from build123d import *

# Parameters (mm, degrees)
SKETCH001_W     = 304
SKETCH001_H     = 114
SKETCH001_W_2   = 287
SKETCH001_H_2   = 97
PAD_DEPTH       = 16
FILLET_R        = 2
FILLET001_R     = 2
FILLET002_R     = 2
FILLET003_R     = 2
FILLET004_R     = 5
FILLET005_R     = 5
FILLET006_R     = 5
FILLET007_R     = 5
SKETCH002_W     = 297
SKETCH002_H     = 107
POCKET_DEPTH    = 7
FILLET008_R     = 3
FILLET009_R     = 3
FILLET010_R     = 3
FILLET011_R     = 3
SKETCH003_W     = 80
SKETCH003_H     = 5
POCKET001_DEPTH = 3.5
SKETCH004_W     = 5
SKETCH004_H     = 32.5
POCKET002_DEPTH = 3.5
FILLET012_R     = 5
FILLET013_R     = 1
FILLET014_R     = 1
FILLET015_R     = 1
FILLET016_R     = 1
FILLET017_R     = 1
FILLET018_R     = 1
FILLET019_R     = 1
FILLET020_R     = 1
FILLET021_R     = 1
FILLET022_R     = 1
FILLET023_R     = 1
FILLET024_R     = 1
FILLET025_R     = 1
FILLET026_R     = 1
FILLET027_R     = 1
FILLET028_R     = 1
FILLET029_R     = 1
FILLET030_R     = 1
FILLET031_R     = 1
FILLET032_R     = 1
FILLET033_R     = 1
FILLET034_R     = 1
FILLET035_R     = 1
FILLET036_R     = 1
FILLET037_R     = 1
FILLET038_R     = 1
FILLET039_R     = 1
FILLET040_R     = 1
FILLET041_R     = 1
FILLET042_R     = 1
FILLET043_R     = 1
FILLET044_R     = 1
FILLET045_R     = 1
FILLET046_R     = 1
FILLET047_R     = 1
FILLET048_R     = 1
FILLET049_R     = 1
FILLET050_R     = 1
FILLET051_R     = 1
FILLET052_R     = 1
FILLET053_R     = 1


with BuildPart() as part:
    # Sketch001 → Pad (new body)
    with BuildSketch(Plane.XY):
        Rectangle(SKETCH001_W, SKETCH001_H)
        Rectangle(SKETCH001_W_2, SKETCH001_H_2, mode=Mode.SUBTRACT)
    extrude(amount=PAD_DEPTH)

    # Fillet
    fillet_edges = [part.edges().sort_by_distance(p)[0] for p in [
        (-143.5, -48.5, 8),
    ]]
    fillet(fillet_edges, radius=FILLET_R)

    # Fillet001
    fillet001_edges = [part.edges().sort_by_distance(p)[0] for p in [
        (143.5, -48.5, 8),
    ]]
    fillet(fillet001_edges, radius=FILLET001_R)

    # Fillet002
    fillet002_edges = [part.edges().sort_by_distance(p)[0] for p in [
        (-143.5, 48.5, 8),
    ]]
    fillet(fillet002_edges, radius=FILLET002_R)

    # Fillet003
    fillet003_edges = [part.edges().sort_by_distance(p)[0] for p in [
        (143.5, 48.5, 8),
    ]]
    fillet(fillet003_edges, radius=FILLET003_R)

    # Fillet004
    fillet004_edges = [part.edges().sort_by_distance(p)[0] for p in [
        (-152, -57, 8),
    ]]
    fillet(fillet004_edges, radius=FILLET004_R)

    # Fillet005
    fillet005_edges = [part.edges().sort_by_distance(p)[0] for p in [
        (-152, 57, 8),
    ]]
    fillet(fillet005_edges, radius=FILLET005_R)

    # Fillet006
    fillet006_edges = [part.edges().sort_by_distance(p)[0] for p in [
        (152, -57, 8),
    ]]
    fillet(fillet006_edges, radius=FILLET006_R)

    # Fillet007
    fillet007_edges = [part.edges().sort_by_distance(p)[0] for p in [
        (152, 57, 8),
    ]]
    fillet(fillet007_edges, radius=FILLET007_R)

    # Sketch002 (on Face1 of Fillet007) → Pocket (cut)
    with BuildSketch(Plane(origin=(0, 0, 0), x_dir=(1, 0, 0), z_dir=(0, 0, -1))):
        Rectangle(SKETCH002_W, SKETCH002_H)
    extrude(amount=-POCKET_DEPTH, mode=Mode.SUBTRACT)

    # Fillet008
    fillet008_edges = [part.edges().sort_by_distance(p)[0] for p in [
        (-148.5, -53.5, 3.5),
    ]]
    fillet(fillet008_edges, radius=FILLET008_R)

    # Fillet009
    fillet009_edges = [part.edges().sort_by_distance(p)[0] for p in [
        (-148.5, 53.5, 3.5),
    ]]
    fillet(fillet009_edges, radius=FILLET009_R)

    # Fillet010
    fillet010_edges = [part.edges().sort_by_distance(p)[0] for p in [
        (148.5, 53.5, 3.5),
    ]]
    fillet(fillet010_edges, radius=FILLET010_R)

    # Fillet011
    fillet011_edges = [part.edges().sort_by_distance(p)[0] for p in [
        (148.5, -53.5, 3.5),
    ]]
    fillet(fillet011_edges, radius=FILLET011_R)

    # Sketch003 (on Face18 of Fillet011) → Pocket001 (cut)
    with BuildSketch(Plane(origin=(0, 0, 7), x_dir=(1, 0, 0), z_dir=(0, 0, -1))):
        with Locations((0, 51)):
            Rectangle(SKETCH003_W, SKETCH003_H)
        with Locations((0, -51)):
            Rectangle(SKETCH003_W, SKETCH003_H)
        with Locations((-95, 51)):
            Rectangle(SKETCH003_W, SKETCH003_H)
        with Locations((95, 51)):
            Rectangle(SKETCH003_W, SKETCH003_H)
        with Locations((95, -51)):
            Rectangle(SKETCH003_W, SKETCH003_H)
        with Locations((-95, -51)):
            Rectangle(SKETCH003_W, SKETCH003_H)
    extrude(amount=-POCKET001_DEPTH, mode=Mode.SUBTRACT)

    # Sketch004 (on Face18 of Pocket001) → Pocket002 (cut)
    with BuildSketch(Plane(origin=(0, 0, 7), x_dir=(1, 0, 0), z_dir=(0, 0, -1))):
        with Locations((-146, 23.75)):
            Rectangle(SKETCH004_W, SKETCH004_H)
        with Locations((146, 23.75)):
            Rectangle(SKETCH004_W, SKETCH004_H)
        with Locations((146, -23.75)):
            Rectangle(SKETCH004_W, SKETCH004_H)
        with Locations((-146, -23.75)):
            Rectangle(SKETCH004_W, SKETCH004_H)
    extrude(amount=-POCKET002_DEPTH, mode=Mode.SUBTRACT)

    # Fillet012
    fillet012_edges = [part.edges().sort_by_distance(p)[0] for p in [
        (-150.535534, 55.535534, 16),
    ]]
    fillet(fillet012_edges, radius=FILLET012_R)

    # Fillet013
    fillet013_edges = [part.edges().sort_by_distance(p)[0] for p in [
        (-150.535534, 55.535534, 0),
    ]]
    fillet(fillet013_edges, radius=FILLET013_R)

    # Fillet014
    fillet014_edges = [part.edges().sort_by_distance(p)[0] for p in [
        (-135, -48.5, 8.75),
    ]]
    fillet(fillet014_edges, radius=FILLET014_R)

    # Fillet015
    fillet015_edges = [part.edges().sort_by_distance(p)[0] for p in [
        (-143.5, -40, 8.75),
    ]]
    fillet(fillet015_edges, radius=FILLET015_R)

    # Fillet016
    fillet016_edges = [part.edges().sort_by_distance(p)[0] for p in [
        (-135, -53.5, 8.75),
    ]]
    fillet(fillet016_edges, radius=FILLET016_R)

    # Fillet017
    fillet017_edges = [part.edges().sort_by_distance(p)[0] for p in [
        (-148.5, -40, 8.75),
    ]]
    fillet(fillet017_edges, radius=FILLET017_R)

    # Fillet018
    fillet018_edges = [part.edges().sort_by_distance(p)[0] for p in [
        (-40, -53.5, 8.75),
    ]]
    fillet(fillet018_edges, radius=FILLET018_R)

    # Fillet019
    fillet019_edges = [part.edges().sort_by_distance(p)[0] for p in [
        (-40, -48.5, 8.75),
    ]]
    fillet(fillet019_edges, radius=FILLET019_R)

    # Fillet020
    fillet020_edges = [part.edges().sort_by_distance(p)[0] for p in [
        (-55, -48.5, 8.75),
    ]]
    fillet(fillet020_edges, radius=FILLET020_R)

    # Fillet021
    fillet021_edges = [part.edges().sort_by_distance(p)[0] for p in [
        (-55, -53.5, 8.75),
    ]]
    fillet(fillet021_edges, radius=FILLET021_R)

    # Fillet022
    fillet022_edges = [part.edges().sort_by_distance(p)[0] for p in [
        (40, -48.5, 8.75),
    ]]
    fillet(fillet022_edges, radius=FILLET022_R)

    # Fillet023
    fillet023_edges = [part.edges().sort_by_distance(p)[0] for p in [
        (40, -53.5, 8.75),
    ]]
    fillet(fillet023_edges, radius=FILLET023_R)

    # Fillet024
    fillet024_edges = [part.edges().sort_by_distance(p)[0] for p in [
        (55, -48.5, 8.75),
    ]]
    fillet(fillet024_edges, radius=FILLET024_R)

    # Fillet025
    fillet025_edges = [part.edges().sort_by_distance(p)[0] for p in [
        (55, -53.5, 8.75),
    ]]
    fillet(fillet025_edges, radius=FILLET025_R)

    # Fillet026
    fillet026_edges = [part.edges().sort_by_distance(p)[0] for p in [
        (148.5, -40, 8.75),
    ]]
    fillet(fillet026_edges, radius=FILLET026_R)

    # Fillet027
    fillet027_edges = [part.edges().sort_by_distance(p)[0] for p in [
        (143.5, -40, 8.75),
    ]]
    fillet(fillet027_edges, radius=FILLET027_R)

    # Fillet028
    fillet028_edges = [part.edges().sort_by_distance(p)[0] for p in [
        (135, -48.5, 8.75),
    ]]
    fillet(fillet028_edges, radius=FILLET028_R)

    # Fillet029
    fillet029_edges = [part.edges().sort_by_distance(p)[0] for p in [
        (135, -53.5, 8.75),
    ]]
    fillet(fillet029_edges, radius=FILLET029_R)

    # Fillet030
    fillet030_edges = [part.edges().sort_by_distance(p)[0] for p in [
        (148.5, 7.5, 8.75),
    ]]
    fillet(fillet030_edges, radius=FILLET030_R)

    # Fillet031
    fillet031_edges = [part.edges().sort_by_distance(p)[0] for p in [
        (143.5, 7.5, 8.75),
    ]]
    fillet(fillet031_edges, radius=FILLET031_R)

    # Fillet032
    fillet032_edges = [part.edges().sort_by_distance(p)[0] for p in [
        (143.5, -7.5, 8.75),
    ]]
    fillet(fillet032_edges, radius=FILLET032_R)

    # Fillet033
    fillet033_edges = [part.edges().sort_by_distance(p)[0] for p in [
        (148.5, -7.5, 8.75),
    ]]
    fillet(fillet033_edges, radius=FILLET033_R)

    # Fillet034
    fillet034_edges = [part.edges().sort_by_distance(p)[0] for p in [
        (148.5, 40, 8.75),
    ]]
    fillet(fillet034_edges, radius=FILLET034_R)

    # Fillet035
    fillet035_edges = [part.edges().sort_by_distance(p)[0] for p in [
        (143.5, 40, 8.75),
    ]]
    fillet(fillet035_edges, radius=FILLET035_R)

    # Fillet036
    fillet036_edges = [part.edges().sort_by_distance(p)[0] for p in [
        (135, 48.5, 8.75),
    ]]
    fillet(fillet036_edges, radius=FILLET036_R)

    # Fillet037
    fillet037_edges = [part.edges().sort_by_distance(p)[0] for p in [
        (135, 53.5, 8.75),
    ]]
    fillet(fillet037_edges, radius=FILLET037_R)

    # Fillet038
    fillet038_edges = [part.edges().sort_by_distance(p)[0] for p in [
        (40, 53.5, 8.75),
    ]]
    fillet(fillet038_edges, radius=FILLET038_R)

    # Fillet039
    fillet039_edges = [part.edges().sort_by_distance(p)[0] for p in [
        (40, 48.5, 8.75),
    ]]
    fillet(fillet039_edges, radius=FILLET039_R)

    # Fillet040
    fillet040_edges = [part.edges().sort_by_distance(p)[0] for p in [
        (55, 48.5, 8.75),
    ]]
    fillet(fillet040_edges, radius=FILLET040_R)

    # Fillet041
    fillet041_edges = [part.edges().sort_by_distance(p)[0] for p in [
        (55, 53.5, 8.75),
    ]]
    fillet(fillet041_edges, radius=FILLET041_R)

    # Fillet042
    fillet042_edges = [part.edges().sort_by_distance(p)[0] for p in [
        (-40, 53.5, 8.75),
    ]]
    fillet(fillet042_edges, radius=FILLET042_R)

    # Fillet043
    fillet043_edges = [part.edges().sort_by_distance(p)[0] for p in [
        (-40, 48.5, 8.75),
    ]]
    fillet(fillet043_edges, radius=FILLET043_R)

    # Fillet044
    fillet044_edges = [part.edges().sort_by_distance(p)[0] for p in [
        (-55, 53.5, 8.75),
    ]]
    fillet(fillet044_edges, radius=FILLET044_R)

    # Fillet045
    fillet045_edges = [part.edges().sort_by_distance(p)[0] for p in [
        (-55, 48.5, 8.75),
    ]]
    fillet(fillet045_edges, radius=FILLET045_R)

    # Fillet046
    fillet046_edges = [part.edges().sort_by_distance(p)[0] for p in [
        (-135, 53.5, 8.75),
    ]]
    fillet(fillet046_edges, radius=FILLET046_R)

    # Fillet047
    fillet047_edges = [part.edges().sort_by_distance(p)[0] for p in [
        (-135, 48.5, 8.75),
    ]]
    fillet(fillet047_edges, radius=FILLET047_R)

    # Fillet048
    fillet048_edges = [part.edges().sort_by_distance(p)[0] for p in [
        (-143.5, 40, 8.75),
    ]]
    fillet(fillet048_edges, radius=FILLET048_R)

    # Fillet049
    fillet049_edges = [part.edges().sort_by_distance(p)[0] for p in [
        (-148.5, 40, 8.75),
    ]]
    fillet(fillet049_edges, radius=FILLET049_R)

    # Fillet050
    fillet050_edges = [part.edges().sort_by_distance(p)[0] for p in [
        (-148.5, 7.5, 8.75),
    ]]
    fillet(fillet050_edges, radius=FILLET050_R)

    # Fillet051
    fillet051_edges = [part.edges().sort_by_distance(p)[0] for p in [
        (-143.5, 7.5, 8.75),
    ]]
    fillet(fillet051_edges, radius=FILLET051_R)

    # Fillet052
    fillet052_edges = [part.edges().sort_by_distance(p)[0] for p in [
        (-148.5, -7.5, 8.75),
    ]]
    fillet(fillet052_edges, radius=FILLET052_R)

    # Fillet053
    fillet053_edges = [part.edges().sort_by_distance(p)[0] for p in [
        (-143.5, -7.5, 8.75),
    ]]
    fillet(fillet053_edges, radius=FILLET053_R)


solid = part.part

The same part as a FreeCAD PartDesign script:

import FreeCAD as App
import Part
import Sketcher
from FreeCAD import Vector
Q = App.Units.Quantity


def edges_at(feature, points):
    """Names of the edges that pass closest to the given points."""
    edges = feature.Shape.Edges
    near = lambda p: min(range(len(edges)), key=lambda i: edges[i].distToShape(Part.Vertex(*p))[0])
    return sorted({f"Edge{near(p) + 1}" for p in points})

doc = App.newDocument("Part")
body = doc.addObject("PartDesign::Body", "Body")

# Sketch on XY plane
sketch1 = body.newObject("Sketcher::SketchObject", "Sketch")
sketch1.AttachmentSupport = (doc.getObject("XY_Plane"), [""])
sketch1.MapMode = "FlatFace"
sketch1.addGeometry([
    Part.LineSegment(Vector(-152, 57, 0), Vector(-152, -57, 0)),  # 0
    Part.LineSegment(Vector(-152, -57, 0), Vector(152, -57, 0)),  # 1
    Part.LineSegment(Vector(152, -57, 0), Vector(152, 57, 0)),  # 2
    Part.LineSegment(Vector(152, 57, 0), Vector(-152, 57, 0)),  # 3
    Part.LineSegment(Vector(143.5, -48.5, 0), Vector(-143.5, -48.5, 0)),  # 4
    Part.LineSegment(Vector(-143.5, -48.5, 0), Vector(-143.5, 48.5, 0)),  # 5
    Part.LineSegment(Vector(-143.5, 48.5, 0), Vector(143.5, 48.5, 0)),  # 6
    Part.LineSegment(Vector(143.5, 48.5, 0), Vector(143.5, -48.5, 0)),  # 7
], False)
sketch1.addConstraint([
    Sketcher.Constraint("Coincident", 0, 2, 1, 1),
    Sketcher.Constraint("Coincident", 1, 2, 2, 1),
    Sketcher.Constraint("Coincident", 2, 2, 3, 1),
    Sketcher.Constraint("Coincident", 3, 2, 0, 1),
    Sketcher.Constraint("Coincident", 4, 2, 5, 1),
    Sketcher.Constraint("Coincident", 5, 2, 6, 1),
    Sketcher.Constraint("Coincident", 6, 2, 7, 1),
    Sketcher.Constraint("Coincident", 7, 2, 4, 1),
    Sketcher.Constraint("Vertical", 0),
    Sketcher.Constraint("Horizontal", 1),
    Sketcher.Constraint("Vertical", 2),
    Sketcher.Constraint("Horizontal", 3),
    Sketcher.Constraint("Horizontal", 4),
    Sketcher.Constraint("Vertical", 5),
    Sketcher.Constraint("Horizontal", 6),
    Sketcher.Constraint("Vertical", 7),
    Sketcher.Constraint("Symmetric", 0, 2, 2, 2, -1, 1),
    Sketcher.Constraint("Symmetric", 4, 2, 6, 2, -1, 1),
    Sketcher.Constraint("DistanceX", 1, 1, 1, 2, Q("304 mm")),
    Sketcher.Constraint("DistanceX", 4, 2, 4, 1, Q("287 mm")),
    Sketcher.Constraint("DistanceY", 0, 2, 0, 1, Q("114 mm")),
    Sketcher.Constraint("DistanceY", 5, 1, 5, 2, Q("97 mm")),
])
pad1 = body.newObject("PartDesign::Pad", "Pad")
pad1.Profile = sketch1
pad1.Length = 16
doc.recompute()

fillet = body.newObject("PartDesign::Fillet", "Fillet")
fillet.Base = (pad1, edges_at(pad1, [(-143.5, -48.5, 8)]))
fillet.Radius = 2
doc.recompute()

fillet2 = body.newObject("PartDesign::Fillet", "Fillet001")
fillet2.Base = (fillet, edges_at(fillet, [(143.5, -48.5, 8)]))
fillet2.Radius = 2
doc.recompute()

fillet3 = body.newObject("PartDesign::Fillet", "Fillet002")
fillet3.Base = (fillet2, edges_at(fillet2, [(-143.5, 48.5, 8)]))
fillet3.Radius = 2
doc.recompute()

fillet4 = body.newObject("PartDesign::Fillet", "Fillet003")
fillet4.Base = (fillet3, edges_at(fillet3, [(143.5, 48.5, 8)]))
fillet4.Radius = 2
doc.recompute()

fillet5 = body.newObject("PartDesign::Fillet", "Fillet004")
fillet5.Base = (fillet4, edges_at(fillet4, [(-152, -57, 8)]))
fillet5.Radius = 5
doc.recompute()

fillet6 = body.newObject("PartDesign::Fillet", "Fillet005")
fillet6.Base = (fillet5, edges_at(fillet5, [(-152, 57, 8)]))
fillet6.Radius = 5
doc.recompute()

fillet7 = body.newObject("PartDesign::Fillet", "Fillet006")
fillet7.Base = (fillet6, edges_at(fillet6, [(152, -57, 8)]))
fillet7.Radius = 5
doc.recompute()

fillet8 = body.newObject("PartDesign::Fillet", "Fillet007")
fillet8.Base = (fillet7, edges_at(fillet7, [(152, 57, 8)]))
fillet8.Radius = 5

# Sketch on XY plane
sketch2 = body.newObject("Sketcher::SketchObject", "Sketch001")
sketch2.AttachmentSupport = (doc.getObject("XY_Plane"), [""])
sketch2.MapMode = "FlatFace"
sketch2.addGeometry([
    Part.LineSegment(Vector(-148.5, -53.5, 0), Vector(-148.5, 53.5, 0)),
    Part.LineSegment(Vector(-148.5, 53.5, 0), Vector(148.5, 53.5, 0)),
    Part.LineSegment(Vector(148.5, 53.5, 0), Vector(148.5, -53.5, 0)),
    Part.LineSegment(Vector(148.5, -53.5, 0), Vector(-148.5, -53.5, 0)),
], False)
sketch2.addConstraint([
    Sketcher.Constraint("Coincident", 0, 2, 1, 1),
    Sketcher.Constraint("Coincident", 1, 2, 2, 1),
    Sketcher.Constraint("Coincident", 2, 2, 3, 1),
    Sketcher.Constraint("Coincident", 3, 2, 0, 1),
    Sketcher.Constraint("Vertical", 0),
    Sketcher.Constraint("Horizontal", 1),
    Sketcher.Constraint("Vertical", 2),
    Sketcher.Constraint("Horizontal", 3),
    Sketcher.Constraint("Symmetric", 0, 2, 2, 2, -1, 1),
    Sketcher.Constraint("DistanceX", 1, 1, 1, 2, Q("297 mm")),
    Sketcher.Constraint("DistanceY", 0, 1, 0, 2, Q("107 mm")),
])
pocket1 = body.newObject("PartDesign::Pocket", "Pocket")
pocket1.Profile = sketch2
pocket1.Length = 7
pocket1.Reversed = True
doc.recompute()

fillet9 = body.newObject("PartDesign::Fillet", "Fillet008")
fillet9.Base = (pocket1, edges_at(pocket1, [(-148.5, -53.5, 3.5)]))
fillet9.Radius = 3
doc.recompute()

fillet10 = body.newObject("PartDesign::Fillet", "Fillet009")
fillet10.Base = (fillet9, edges_at(fillet9, [(-148.5, 53.5, 3.5)]))
fillet10.Radius = 3
doc.recompute()

fillet11 = body.newObject("PartDesign::Fillet", "Fillet010")
fillet11.Base = (fillet10, edges_at(fillet10, [(148.5, 53.5, 3.5)]))
fillet11.Radius = 3
doc.recompute()

fillet12 = body.newObject("PartDesign::Fillet", "Fillet011")
fillet12.Base = (fillet11, edges_at(fillet11, [(148.5, -53.5, 3.5)]))
fillet12.Radius = 3

# Sketch on XY plane
sketch3 = body.newObject("Sketcher::SketchObject", "Sketch002")
sketch3.AttachmentSupport = (doc.getObject("XY_Plane"), [""])
sketch3.MapMode = "FlatFace"
sketch3.AttachmentOffset = App.Placement(Vector(0, 0, 7), App.Rotation())
sketch3.addGeometry([
    Part.LineSegment(Vector(-40, -53.5, 0), Vector(-40, -48.5, 0)),  # 0
    Part.LineSegment(Vector(-40, -48.5, 0), Vector(40, -48.5, 0)),  # 1
    Part.LineSegment(Vector(40, -48.5, 0), Vector(40, -53.5, 0)),  # 2
    Part.LineSegment(Vector(40, -53.5, 0), Vector(-40, -53.5, 0)),  # 3
    Part.LineSegment(Vector(-40, 48.5, 0), Vector(-40, 53.5, 0)),  # 4
    Part.LineSegment(Vector(-40, 53.5, 0), Vector(40, 53.5, 0)),  # 5
    Part.LineSegment(Vector(40, 53.5, 0), Vector(40, 48.5, 0)),  # 6
    Part.LineSegment(Vector(40, 48.5, 0), Vector(-40, 48.5, 0)),  # 7
    Part.LineSegment(Vector(-135, -53.5, 0), Vector(-135, -48.5, 0)),  # 8
    Part.LineSegment(Vector(-135, -48.5, 0), Vector(-55, -48.5, 0)),  # 9
    Part.LineSegment(Vector(-55, -48.5, 0), Vector(-55, -53.5, 0)),  # 10
    Part.LineSegment(Vector(-55, -53.5, 0), Vector(-135, -53.5, 0)),  # 11
    Part.LineSegment(Vector(55, -53.5, 0), Vector(55, -48.5, 0)),  # 12
    Part.LineSegment(Vector(55, -48.5, 0), Vector(135, -48.5, 0)),  # 13
    Part.LineSegment(Vector(135, -48.5, 0), Vector(135, -53.5, 0)),  # 14
    Part.LineSegment(Vector(135, -53.5, 0), Vector(55, -53.5, 0)),  # 15
    Part.LineSegment(Vector(55, 48.5, 0), Vector(55, 53.5, 0)),  # 16
    Part.LineSegment(Vector(55, 53.5, 0), Vector(135, 53.5, 0)),  # 17
    Part.LineSegment(Vector(135, 53.5, 0), Vector(135, 48.5, 0)),  # 18
    Part.LineSegment(Vector(135, 48.5, 0), Vector(55, 48.5, 0)),  # 19
    Part.LineSegment(Vector(-135, 48.5, 0), Vector(-135, 53.5, 0)),  # 20
    Part.LineSegment(Vector(-135, 53.5, 0), Vector(-55, 53.5, 0)),  # 21
    Part.LineSegment(Vector(-55, 53.5, 0), Vector(-55, 48.5, 0)),  # 22
    Part.LineSegment(Vector(-55, 48.5, 0), Vector(-135, 48.5, 0)),  # 23
], False)
sketch3.addConstraint([
    Sketcher.Constraint("Coincident", 0, 2, 1, 1),
    Sketcher.Constraint("Coincident", 1, 2, 2, 1),
    Sketcher.Constraint("Coincident", 2, 2, 3, 1),
    Sketcher.Constraint("Coincident", 3, 2, 0, 1),
    Sketcher.Constraint("Coincident", 4, 2, 5, 1),
    Sketcher.Constraint("Coincident", 5, 2, 6, 1),
    Sketcher.Constraint("Coincident", 6, 2, 7, 1),
    Sketcher.Constraint("Coincident", 7, 2, 4, 1),
    Sketcher.Constraint("Coincident", 8, 2, 9, 1),
    Sketcher.Constraint("Coincident", 9, 2, 10, 1),
    Sketcher.Constraint("Coincident", 10, 2, 11, 1),
    Sketcher.Constraint("Coincident", 11, 2, 8, 1),
    Sketcher.Constraint("Coincident", 12, 2, 13, 1),
    Sketcher.Constraint("Coincident", 13, 2, 14, 1),
    Sketcher.Constraint("Coincident", 14, 2, 15, 1),
    Sketcher.Constraint("Coincident", 15, 2, 12, 1),
    Sketcher.Constraint("Coincident", 16, 2, 17, 1),
    Sketcher.Constraint("Coincident", 17, 2, 18, 1),
    Sketcher.Constraint("Coincident", 18, 2, 19, 1),
    Sketcher.Constraint("Coincident", 19, 2, 16, 1),
    Sketcher.Constraint("Coincident", 20, 2, 21, 1),
    Sketcher.Constraint("Coincident", 21, 2, 22, 1),
    Sketcher.Constraint("Coincident", 22, 2, 23, 1),
    Sketcher.Constraint("Coincident", 23, 2, 20, 1),
    Sketcher.Constraint("Vertical", 0),
    Sketcher.Constraint("Horizontal", 1),
    Sketcher.Constraint("Vertical", 2),
    Sketcher.Constraint("Horizontal", 3),
    Sketcher.Constraint("Vertical", 4),
    Sketcher.Constraint("Horizontal", 5),
    Sketcher.Constraint("Vertical", 6),
    Sketcher.Constraint("Horizontal", 7),
    Sketcher.Constraint("Vertical", 8),
    Sketcher.Constraint("Horizontal", 9),
    Sketcher.Constraint("Vertical", 10),
    Sketcher.Constraint("Horizontal", 11),
    Sketcher.Constraint("Vertical", 12),
    Sketcher.Constraint("Horizontal", 13),
    Sketcher.Constraint("Vertical", 14),
    Sketcher.Constraint("Horizontal", 15),
    Sketcher.Constraint("Vertical", 16),
    Sketcher.Constraint("Horizontal", 17),
    Sketcher.Constraint("Vertical", 18),
    Sketcher.Constraint("Horizontal", 19),
    Sketcher.Constraint("Vertical", 20),
    Sketcher.Constraint("Horizontal", 21),
    Sketcher.Constraint("Vertical", 22),
    Sketcher.Constraint("Horizontal", 23),
    Sketcher.Constraint("Symmetric", 2, 2, 4, 2, -1, 1),
    Sketcher.Constraint("Symmetric", 0, 2, 6, 2, -1, 1),
    Sketcher.Constraint("Symmetric", 10, 2, 16, 2, -1, 1),
    Sketcher.Constraint("Symmetric", 8, 2, 18, 2, -1, 1),
    Sketcher.Constraint("Symmetric", 14, 2, 20, 2, -1, 1),
    Sketcher.Constraint("Symmetric", 12, 2, 22, 2, -1, 1),
    Sketcher.Constraint("Symmetric", 9, 2, 12, 2, -2),
    Sketcher.Constraint("Symmetric", 11, 2, 14, 2, -2),
    Sketcher.Constraint("Horizontal", 1, 2, 8, 2),
    Sketcher.Constraint("Horizontal", 3, 2, 10, 2),
    Sketcher.Constraint("Vertical", 3, 2, 4, 2),
    Sketcher.Constraint("Equal", 7, 9),
    Sketcher.Constraint("DistanceX", 1, 1, 1, 2, Q("80 mm")),
    Sketcher.Constraint("DistanceY", 0, 1, 0, 2, Q("5 mm")),
    Sketcher.Constraint("DistanceX", 8, 2, -1, 1, Q("135 mm")),
    Sketcher.Constraint("DistanceY", 0, 2, 4, 2, Q("102 mm")),
])
pocket2 = body.newObject("PartDesign::Pocket", "Pocket001")
pocket2.Profile = sketch3
pocket2.Length = 3.5
pocket2.Reversed = True

# Sketch on XY plane
sketch4 = body.newObject("Sketcher::SketchObject", "Sketch003")
sketch4.AttachmentSupport = (doc.getObject("XY_Plane"), [""])
sketch4.MapMode = "FlatFace"
sketch4.AttachmentOffset = App.Placement(Vector(0, 0, 7), App.Rotation())
sketch4.addGeometry([
    Part.LineSegment(Vector(-148.5, -40, 0), Vector(-148.5, -7.5, 0)),  # 0
    Part.LineSegment(Vector(-148.5, -7.5, 0), Vector(-143.5, -7.5, 0)),  # 1
    Part.LineSegment(Vector(-143.5, -7.5, 0), Vector(-143.5, -40, 0)),  # 2
    Part.LineSegment(Vector(-143.5, -40, 0), Vector(-148.5, -40, 0)),  # 3
    Part.LineSegment(Vector(143.5, -40, 0), Vector(143.5, -7.5, 0)),  # 4
    Part.LineSegment(Vector(143.5, -7.5, 0), Vector(148.5, -7.5, 0)),  # 5
    Part.LineSegment(Vector(148.5, -7.5, 0), Vector(148.5, -40, 0)),  # 6
    Part.LineSegment(Vector(148.5, -40, 0), Vector(143.5, -40, 0)),  # 7
    Part.LineSegment(Vector(143.5, 7.5, 0), Vector(143.5, 40, 0)),  # 8
    Part.LineSegment(Vector(143.5, 40, 0), Vector(148.5, 40, 0)),  # 9
    Part.LineSegment(Vector(148.5, 40, 0), Vector(148.5, 7.5, 0)),  # 10
    Part.LineSegment(Vector(148.5, 7.5, 0), Vector(143.5, 7.5, 0)),  # 11
    Part.LineSegment(Vector(-148.5, 7.5, 0), Vector(-148.5, 40, 0)),  # 12
    Part.LineSegment(Vector(-148.5, 40, 0), Vector(-143.5, 40, 0)),  # 13
    Part.LineSegment(Vector(-143.5, 40, 0), Vector(-143.5, 7.5, 0)),  # 14
    Part.LineSegment(Vector(-143.5, 7.5, 0), Vector(-148.5, 7.5, 0)),  # 15
], False)
sketch4.addConstraint([
    Sketcher.Constraint("Coincident", 0, 2, 1, 1),
    Sketcher.Constraint("Coincident", 1, 2, 2, 1),
    Sketcher.Constraint("Coincident", 2, 2, 3, 1),
    Sketcher.Constraint("Coincident", 3, 2, 0, 1),
    Sketcher.Constraint("Coincident", 4, 2, 5, 1),
    Sketcher.Constraint("Coincident", 5, 2, 6, 1),
    Sketcher.Constraint("Coincident", 6, 2, 7, 1),
    Sketcher.Constraint("Coincident", 7, 2, 4, 1),
    Sketcher.Constraint("Coincident", 8, 2, 9, 1),
    Sketcher.Constraint("Coincident", 9, 2, 10, 1),
    Sketcher.Constraint("Coincident", 10, 2, 11, 1),
    Sketcher.Constraint("Coincident", 11, 2, 8, 1),
    Sketcher.Constraint("Coincident", 12, 2, 13, 1),
    Sketcher.Constraint("Coincident", 13, 2, 14, 1),
    Sketcher.Constraint("Coincident", 14, 2, 15, 1),
    Sketcher.Constraint("Coincident", 15, 2, 12, 1),
    Sketcher.Constraint("Vertical", 0),
    Sketcher.Constraint("Horizontal", 1),
    Sketcher.Constraint("Vertical", 2),
    Sketcher.Constraint("Horizontal", 3),
    Sketcher.Constraint("Vertical", 4),
    Sketcher.Constraint("Horizontal", 5),
    Sketcher.Constraint("Vertical", 6),
    Sketcher.Constraint("Horizontal", 7),
    Sketcher.Constraint("Vertical", 8),
    Sketcher.Constraint("Horizontal", 9),
    Sketcher.Constraint("Vertical", 10),
    Sketcher.Constraint("Horizontal", 11),
    Sketcher.Constraint("Vertical", 12),
    Sketcher.Constraint("Horizontal", 13),
    Sketcher.Constraint("Vertical", 14),
    Sketcher.Constraint("Horizontal", 15),
    Sketcher.Constraint("Symmetric", 2, 2, 8, 2, -1, 1),
    Sketcher.Constraint("Symmetric", 0, 2, 10, 2, -1, 1),
    Sketcher.Constraint("Symmetric", 6, 2, 12, 2, -1, 1),
    Sketcher.Constraint("Symmetric", 4, 2, 14, 2, -1, 1),
    Sketcher.Constraint("Symmetric", 1, 2, 4, 2, -2),
    Sketcher.Constraint("Symmetric", 3, 2, 6, 2, -2),
    Sketcher.Constraint("DistanceX", 1, 1, 1, 2, Q("5 mm")),
    Sketcher.Constraint("DistanceY", 0, 1, 0, 2, Q("32.5 mm")),
    Sketcher.Constraint("DistanceY", 2, 2, -1, 1, Q("40 mm")),
    Sketcher.Constraint("DistanceX", 1, 2, 4, 2, Q("287 mm")),
])
pocket3 = body.newObject("PartDesign::Pocket", "Pocket002")
pocket3.Profile = sketch4
pocket3.Length = 3.5
pocket3.Reversed = True
doc.recompute()

fillet13 = body.newObject("PartDesign::Fillet", "Fillet012")
fillet13.Base = (pocket3, edges_at(pocket3, [(-150.536, 55.536, 16)]))
fillet13.Radius = 5
doc.recompute()

fillet14 = body.newObject("PartDesign::Fillet", "Fillet013")
fillet14.Base = (fillet13, edges_at(fillet13, [(-150.536, 55.536, 0)]))
fillet14.Radius = 1
doc.recompute()

fillet15 = body.newObject("PartDesign::Fillet", "Fillet014")
fillet15.Base = (fillet14, edges_at(fillet14, [(-135, -48.5, 8.75)]))
fillet15.Radius = 1
doc.recompute()

fillet16 = body.newObject("PartDesign::Fillet", "Fillet015")
fillet16.Base = (fillet15, edges_at(fillet15, [(-143.5, -40, 8.75)]))
fillet16.Radius = 1
doc.recompute()

fillet17 = body.newObject("PartDesign::Fillet", "Fillet016")
fillet17.Base = (fillet16, edges_at(fillet16, [(-135, -53.5, 8.75)]))
fillet17.Radius = 1
doc.recompute()

fillet18 = body.newObject("PartDesign::Fillet", "Fillet017")
fillet18.Base = (fillet17, edges_at(fillet17, [(-148.5, -40, 8.75)]))
fillet18.Radius = 1
doc.recompute()

fillet19 = body.newObject("PartDesign::Fillet", "Fillet018")
fillet19.Base = (fillet18, edges_at(fillet18, [(-40, -53.5, 8.75)]))
fillet19.Radius = 1
doc.recompute()

fillet20 = body.newObject("PartDesign::Fillet", "Fillet019")
fillet20.Base = (fillet19, edges_at(fillet19, [(-40, -48.5, 8.75)]))
fillet20.Radius = 1
doc.recompute()

fillet21 = body.newObject("PartDesign::Fillet", "Fillet020")
fillet21.Base = (fillet20, edges_at(fillet20, [(-55, -48.5, 8.75)]))
fillet21.Radius = 1
doc.recompute()

fillet22 = body.newObject("PartDesign::Fillet", "Fillet021")
fillet22.Base = (fillet21, edges_at(fillet21, [(-55, -53.5, 8.75)]))
fillet22.Radius = 1
doc.recompute()

fillet23 = body.newObject("PartDesign::Fillet", "Fillet022")
fillet23.Base = (fillet22, edges_at(fillet22, [(40, -48.5, 8.75)]))
fillet23.Radius = 1
doc.recompute()

fillet24 = body.newObject("PartDesign::Fillet", "Fillet023")
fillet24.Base = (fillet23, edges_at(fillet23, [(40, -53.5, 8.75)]))
fillet24.Radius = 1
doc.recompute()

fillet25 = body.newObject("PartDesign::Fillet", "Fillet024")
fillet25.Base = (fillet24, edges_at(fillet24, [(55, -48.5, 8.75)]))
fillet25.Radius = 1
doc.recompute()

fillet26 = body.newObject("PartDesign::Fillet", "Fillet025")
fillet26.Base = (fillet25, edges_at(fillet25, [(55, -53.5, 8.75)]))
fillet26.Radius = 1
doc.recompute()

fillet27 = body.newObject("PartDesign::Fillet", "Fillet026")
fillet27.Base = (fillet26, edges_at(fillet26, [(148.5, -40, 8.75)]))
fillet27.Radius = 1
doc.recompute()

fillet28 = body.newObject("PartDesign::Fillet", "Fillet027")
fillet28.Base = (fillet27, edges_at(fillet27, [(143.5, -40, 8.75)]))
fillet28.Radius = 1
doc.recompute()

fillet29 = body.newObject("PartDesign::Fillet", "Fillet028")
fillet29.Base = (fillet28, edges_at(fillet28, [(135, -48.5, 8.75)]))
fillet29.Radius = 1
doc.recompute()

fillet30 = body.newObject("PartDesign::Fillet", "Fillet029")
fillet30.Base = (fillet29, edges_at(fillet29, [(135, -53.5, 8.75)]))
fillet30.Radius = 1
doc.recompute()

fillet31 = body.newObject("PartDesign::Fillet", "Fillet030")
fillet31.Base = (fillet30, edges_at(fillet30, [(148.5, 7.5, 8.75)]))
fillet31.Radius = 1
doc.recompute()

fillet32 = body.newObject("PartDesign::Fillet", "Fillet031")
fillet32.Base = (fillet31, edges_at(fillet31, [(143.5, 7.5, 8.75)]))
fillet32.Radius = 1
doc.recompute()

fillet33 = body.newObject("PartDesign::Fillet", "Fillet032")
fillet33.Base = (fillet32, edges_at(fillet32, [(143.5, -7.5, 8.75)]))
fillet33.Radius = 1
doc.recompute()

fillet34 = body.newObject("PartDesign::Fillet", "Fillet033")
fillet34.Base = (fillet33, edges_at(fillet33, [(148.5, -7.5, 8.75)]))
fillet34.Radius = 1
doc.recompute()

fillet35 = body.newObject("PartDesign::Fillet", "Fillet034")
fillet35.Base = (fillet34, edges_at(fillet34, [(148.5, 40, 8.75)]))
fillet35.Radius = 1
doc.recompute()

fillet36 = body.newObject("PartDesign::Fillet", "Fillet035")
fillet36.Base = (fillet35, edges_at(fillet35, [(143.5, 40, 8.75)]))
fillet36.Radius = 1
doc.recompute()

fillet37 = body.newObject("PartDesign::Fillet", "Fillet036")
fillet37.Base = (fillet36, edges_at(fillet36, [(135, 48.5, 8.75)]))
fillet37.Radius = 1
doc.recompute()

fillet38 = body.newObject("PartDesign::Fillet", "Fillet037")
fillet38.Base = (fillet37, edges_at(fillet37, [(135, 53.5, 8.75)]))
fillet38.Radius = 1
doc.recompute()

fillet39 = body.newObject("PartDesign::Fillet", "Fillet038")
fillet39.Base = (fillet38, edges_at(fillet38, [(40, 53.5, 8.75)]))
fillet39.Radius = 1
doc.recompute()

fillet40 = body.newObject("PartDesign::Fillet", "Fillet039")
fillet40.Base = (fillet39, edges_at(fillet39, [(40, 48.5, 8.75)]))
fillet40.Radius = 1
doc.recompute()

fillet41 = body.newObject("PartDesign::Fillet", "Fillet040")
fillet41.Base = (fillet40, edges_at(fillet40, [(55, 48.5, 8.75)]))
fillet41.Radius = 1
doc.recompute()

fillet42 = body.newObject("PartDesign::Fillet", "Fillet041")
fillet42.Base = (fillet41, edges_at(fillet41, [(55, 53.5, 8.75)]))
fillet42.Radius = 1
doc.recompute()

fillet43 = body.newObject("PartDesign::Fillet", "Fillet042")
fillet43.Base = (fillet42, edges_at(fillet42, [(-40, 53.5, 8.75)]))
fillet43.Radius = 1
doc.recompute()

fillet44 = body.newObject("PartDesign::Fillet", "Fillet043")
fillet44.Base = (fillet43, edges_at(fillet43, [(-40, 48.5, 8.75)]))
fillet44.Radius = 1
doc.recompute()

fillet45 = body.newObject("PartDesign::Fillet", "Fillet044")
fillet45.Base = (fillet44, edges_at(fillet44, [(-55, 53.5, 8.75)]))
fillet45.Radius = 1
doc.recompute()

fillet46 = body.newObject("PartDesign::Fillet", "Fillet045")
fillet46.Base = (fillet45, edges_at(fillet45, [(-55, 48.5, 8.75)]))
fillet46.Radius = 1
doc.recompute()

fillet47 = body.newObject("PartDesign::Fillet", "Fillet046")
fillet47.Base = (fillet46, edges_at(fillet46, [(-135, 53.5, 8.75)]))
fillet47.Radius = 1
doc.recompute()

fillet48 = body.newObject("PartDesign::Fillet", "Fillet047")
fillet48.Base = (fillet47, edges_at(fillet47, [(-135, 48.5, 8.75)]))
fillet48.Radius = 1
doc.recompute()

fillet49 = body.newObject("PartDesign::Fillet", "Fillet048")
fillet49.Base = (fillet48, edges_at(fillet48, [(-143.5, 40, 8.75)]))
fillet49.Radius = 1
doc.recompute()

fillet50 = body.newObject("PartDesign::Fillet", "Fillet049")
fillet50.Base = (fillet49, edges_at(fillet49, [(-148.5, 40, 8.75)]))
fillet50.Radius = 1
doc.recompute()

fillet51 = body.newObject("PartDesign::Fillet", "Fillet050")
fillet51.Base = (fillet50, edges_at(fillet50, [(-148.5, 7.5, 8.75)]))
fillet51.Radius = 1
doc.recompute()

fillet52 = body.newObject("PartDesign::Fillet", "Fillet051")
fillet52.Base = (fillet51, edges_at(fillet51, [(-143.5, 7.5, 8.75)]))
fillet52.Radius = 1
doc.recompute()

fillet53 = body.newObject("PartDesign::Fillet", "Fillet052")
fillet53.Base = (fillet52, edges_at(fillet52, [(-148.5, -7.5, 8.75)]))
fillet53.Radius = 1
doc.recompute()

fillet54 = body.newObject("PartDesign::Fillet", "Fillet053")
fillet54.Base = (fillet53, edges_at(fillet53, [(-143.5, -7.5, 8.75)]))
fillet54.Radius = 1

doc.recompute()
